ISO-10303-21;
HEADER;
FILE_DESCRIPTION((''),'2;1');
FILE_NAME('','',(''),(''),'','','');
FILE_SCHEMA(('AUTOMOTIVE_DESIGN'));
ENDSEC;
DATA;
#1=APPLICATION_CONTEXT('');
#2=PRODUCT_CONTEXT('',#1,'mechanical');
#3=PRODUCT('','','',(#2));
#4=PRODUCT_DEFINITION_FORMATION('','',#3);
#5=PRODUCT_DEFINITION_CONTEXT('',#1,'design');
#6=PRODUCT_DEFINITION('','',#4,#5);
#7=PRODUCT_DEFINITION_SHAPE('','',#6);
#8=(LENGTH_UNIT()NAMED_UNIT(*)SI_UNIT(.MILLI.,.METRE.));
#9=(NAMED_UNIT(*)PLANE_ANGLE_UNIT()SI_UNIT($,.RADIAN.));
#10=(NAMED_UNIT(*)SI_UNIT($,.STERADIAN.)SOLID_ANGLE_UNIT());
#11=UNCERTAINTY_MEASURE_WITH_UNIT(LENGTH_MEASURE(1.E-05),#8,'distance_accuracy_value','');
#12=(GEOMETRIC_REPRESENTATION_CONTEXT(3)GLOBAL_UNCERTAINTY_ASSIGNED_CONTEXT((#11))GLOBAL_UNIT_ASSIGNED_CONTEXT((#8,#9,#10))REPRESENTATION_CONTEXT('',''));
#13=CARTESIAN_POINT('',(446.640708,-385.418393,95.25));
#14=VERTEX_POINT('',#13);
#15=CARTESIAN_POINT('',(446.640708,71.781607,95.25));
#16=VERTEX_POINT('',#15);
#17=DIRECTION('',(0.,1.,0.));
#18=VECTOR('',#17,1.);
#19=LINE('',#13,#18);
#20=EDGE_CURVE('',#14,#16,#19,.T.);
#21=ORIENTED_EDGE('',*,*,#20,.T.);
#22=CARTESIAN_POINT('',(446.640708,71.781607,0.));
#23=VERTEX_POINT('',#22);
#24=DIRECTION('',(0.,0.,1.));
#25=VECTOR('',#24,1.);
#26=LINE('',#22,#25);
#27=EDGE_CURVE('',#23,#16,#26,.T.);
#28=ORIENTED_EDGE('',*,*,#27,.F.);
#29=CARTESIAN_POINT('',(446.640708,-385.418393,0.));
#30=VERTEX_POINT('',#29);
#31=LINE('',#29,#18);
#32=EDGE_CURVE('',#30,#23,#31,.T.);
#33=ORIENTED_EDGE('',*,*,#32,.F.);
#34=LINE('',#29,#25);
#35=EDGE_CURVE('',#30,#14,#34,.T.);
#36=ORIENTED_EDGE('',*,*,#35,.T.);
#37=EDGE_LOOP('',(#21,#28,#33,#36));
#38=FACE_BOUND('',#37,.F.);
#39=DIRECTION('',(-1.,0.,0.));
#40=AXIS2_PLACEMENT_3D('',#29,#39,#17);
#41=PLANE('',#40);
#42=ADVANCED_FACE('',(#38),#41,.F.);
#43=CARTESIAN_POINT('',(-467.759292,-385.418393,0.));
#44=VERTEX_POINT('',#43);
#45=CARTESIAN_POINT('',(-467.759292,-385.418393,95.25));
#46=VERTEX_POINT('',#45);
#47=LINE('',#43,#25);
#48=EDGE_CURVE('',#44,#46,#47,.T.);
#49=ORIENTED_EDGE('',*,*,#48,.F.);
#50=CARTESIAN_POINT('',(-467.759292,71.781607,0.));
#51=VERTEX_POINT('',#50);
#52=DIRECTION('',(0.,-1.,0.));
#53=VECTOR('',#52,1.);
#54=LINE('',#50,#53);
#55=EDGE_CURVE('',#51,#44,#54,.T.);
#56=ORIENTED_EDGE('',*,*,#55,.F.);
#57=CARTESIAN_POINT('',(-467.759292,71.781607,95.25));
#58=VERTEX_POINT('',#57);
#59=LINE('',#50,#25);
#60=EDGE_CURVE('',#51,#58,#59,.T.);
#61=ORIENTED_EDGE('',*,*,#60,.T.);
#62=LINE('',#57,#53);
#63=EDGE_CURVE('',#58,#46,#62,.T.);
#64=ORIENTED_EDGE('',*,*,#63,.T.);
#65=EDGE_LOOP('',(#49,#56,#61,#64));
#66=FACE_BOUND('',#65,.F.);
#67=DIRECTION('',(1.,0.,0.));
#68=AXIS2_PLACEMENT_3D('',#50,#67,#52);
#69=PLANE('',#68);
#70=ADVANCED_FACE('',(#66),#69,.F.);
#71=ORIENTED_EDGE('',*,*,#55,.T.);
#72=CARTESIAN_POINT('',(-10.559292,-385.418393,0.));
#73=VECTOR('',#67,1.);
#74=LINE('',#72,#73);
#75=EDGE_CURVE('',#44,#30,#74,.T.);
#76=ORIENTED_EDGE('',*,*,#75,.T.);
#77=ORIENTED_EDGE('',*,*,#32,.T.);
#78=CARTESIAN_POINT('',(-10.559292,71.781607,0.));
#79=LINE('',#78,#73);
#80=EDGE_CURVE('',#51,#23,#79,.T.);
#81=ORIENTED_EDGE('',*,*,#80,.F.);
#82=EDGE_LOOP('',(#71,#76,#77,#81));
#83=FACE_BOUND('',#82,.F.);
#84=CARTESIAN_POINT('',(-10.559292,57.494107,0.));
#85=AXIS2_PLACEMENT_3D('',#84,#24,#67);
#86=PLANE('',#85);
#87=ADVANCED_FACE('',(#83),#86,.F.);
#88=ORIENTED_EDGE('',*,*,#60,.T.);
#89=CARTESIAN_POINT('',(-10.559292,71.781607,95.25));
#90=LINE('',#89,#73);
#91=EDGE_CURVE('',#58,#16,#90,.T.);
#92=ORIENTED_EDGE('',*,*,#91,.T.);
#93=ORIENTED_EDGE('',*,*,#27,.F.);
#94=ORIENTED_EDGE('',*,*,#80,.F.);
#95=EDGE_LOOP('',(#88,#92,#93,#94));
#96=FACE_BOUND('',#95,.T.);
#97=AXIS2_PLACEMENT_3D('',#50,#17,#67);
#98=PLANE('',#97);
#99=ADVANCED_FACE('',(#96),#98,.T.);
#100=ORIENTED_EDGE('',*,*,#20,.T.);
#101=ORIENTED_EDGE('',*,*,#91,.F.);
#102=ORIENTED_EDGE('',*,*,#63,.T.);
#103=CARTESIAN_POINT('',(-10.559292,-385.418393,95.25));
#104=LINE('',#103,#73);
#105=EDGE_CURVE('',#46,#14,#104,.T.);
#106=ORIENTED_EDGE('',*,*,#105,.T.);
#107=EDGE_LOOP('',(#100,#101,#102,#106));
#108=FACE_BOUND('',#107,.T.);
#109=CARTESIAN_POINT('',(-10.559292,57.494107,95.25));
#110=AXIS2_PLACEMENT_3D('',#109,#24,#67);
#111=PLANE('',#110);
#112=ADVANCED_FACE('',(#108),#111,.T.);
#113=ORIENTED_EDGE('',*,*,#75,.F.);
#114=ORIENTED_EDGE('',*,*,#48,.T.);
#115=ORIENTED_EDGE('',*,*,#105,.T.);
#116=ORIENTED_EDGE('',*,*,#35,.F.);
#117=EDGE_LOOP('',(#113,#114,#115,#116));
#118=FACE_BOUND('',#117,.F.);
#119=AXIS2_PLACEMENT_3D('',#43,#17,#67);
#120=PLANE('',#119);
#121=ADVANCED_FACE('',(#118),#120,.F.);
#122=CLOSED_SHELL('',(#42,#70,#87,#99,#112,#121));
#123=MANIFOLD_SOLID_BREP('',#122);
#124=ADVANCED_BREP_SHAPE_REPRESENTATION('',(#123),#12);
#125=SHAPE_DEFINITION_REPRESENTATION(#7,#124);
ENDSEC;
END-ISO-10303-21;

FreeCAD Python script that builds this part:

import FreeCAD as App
import Part
import Sketcher

V = App.Vector
Q = App.Units.Quantity


def add_polygon(sketch, points):
    """Adds a closed chain of lines whose ends are joined by coincident constraints."""
    first, n = sketch.GeometryCount, len(points)
    for a, b in zip(points, points[1:] + points[:1]):
        sketch.addGeometry(Part.LineSegment(App.Vector(*a, 0), App.Vector(*b, 0)), False)
    for i in range(n):
        sketch.addConstraint(Sketcher.Constraint("Coincident", first + i, 2, first + (i + 1) % n, 1))

doc = App.newDocument("Part")
params = doc.addObject("Spreadsheet::Sheet", "Params")
for row, (alias, value) in enumerate([
    ("sketch1_width", "36 in"),
    ("sketch1_height", "18 in"),
    ("pad1_length", "3.75 in"),
], start=1):
    params.set(f"A{row}", alias)
    params.set(f"B{row}", "=" + value)
    params.setAlias(f"B{row}", alias)

body = doc.addObject("PartDesign::Body", "Body")

# Sketch on XY plane
sketch1 = body.newObject("Sketcher::SketchObject", "Sketch")
sketch1.AttachmentSupport = (doc.getObject("XY_Plane"), [""])
sketch1.MapMode = "FlatFace"
add_polygon(sketch1, [(-467.759292, 71.781607), (-467.759292, -385.418393), (446.640708, -385.418393), (446.640708, 71.781607)])  # lines 0-3
sketch1.addConstraint(Sketcher.Constraint("Vertical", 0))
sketch1.addConstraint(Sketcher.Constraint("Horizontal", 1))
sketch1.addConstraint(Sketcher.Constraint("Vertical", 2))
sketch1.addConstraint(Sketcher.Constraint("Horizontal", 3))
sketch1.addConstraint(Sketcher.Constraint("DistanceX", 1, 1, 1, 2, Q("36 in")))
sketch1.addConstraint(Sketcher.Constraint("DistanceY", 0, 2, 0, 1, Q("18 in")))
sketch1.addConstraint(Sketcher.Constraint("DistanceX", 0, 2, -1, 1, Q("467.759292 mm")))
sketch1.addConstraint(Sketcher.Constraint("DistanceY", 0, 2, -1, 1, Q("385.418393 mm")))
sketch1.setExpression("Constraints[8]", "Params.sketch1_width")
sketch1.setExpression("Constraints[9]", "Params.sketch1_height")
pad1 = body.newObject("PartDesign::Pad", "Pad")
pad1.Profile = sketch1
pad1.setExpression("Length", "Params.pad1_length")

doc.recompute()
